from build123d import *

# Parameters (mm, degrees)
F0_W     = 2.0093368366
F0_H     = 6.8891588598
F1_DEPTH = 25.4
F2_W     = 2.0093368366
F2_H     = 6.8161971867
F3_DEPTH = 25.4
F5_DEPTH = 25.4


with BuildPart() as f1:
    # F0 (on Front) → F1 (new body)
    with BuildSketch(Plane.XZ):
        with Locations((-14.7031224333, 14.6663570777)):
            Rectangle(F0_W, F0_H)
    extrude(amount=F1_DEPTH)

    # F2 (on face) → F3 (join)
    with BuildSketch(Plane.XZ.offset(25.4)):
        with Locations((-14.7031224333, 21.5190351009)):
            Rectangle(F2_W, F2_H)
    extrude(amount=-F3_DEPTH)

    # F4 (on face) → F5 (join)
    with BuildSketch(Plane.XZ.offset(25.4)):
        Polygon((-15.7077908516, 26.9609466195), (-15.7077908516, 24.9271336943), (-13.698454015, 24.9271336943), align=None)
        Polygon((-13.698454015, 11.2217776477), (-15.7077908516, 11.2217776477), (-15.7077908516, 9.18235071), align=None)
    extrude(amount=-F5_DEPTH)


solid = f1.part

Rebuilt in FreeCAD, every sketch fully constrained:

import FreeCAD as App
import Part
import Sketcher

V = App.Vector
Q = App.Units.Quantity


def add_polygon(sketch, points):
    """Adds a closed chain of lines whose ends are joined by coincident constraints."""
    first, n = sketch.GeometryCount, len(points)
    for a, b in zip(points, points[1:] + points[:1]):
        sketch.addGeometry(Part.LineSegment(App.Vector(*a, 0), App.Vector(*b, 0)), False)
    for i in range(n):
        sketch.addConstraint(Sketcher.Constraint("Coincident", first + i, 2, first + (i + 1) % n, 1))

doc = App.newDocument("Part")
body = doc.addObject("PartDesign::Body", "Body")

# Sketch on XZ plane
sketch1 = body.newObject("Sketcher::SketchObject", "Sketch")
sketch1.AttachmentSupport = (doc.getObject("XZ_Plane"), [""])
sketch1.MapMode = "FlatFace"
add_polygon(sketch1, [(-15.707791, 18.110937), (-15.707791, 11.221778), (-13.698454, 11.221778), (-13.698454, 18.110937)])  # lines 0-3
sketch1.addConstraint([
    Sketcher.Constraint("Vertical", 0),
    Sketcher.Constraint("Horizontal", 1),
    Sketcher.Constraint("Vertical", 2),
    Sketcher.Constraint("Horizontal", 3),
    Sketcher.Constraint("DistanceY", 0, 2, 0, 1, Q("6.889159 mm")),
    Sketcher.Constraint("DistanceX", 1, 1, 1, 2, Q("2.009337 mm")),
    Sketcher.Constraint("DistanceX", 0, 2, -1, 1, Q("15.707791 mm")),
    Sketcher.Constraint("DistanceY", -1, 1, 0, 2, Q("11.221778 mm")),
])
pad1 = body.newObject("PartDesign::Pad", "Pad")
pad1.Profile = sketch1
pad1.Length = Q("1 in")

# Sketch on XZ plane
sketch2 = body.newObject("Sketcher::SketchObject", "Sketch001")
sketch2.AttachmentSupport = (doc.getObject("XZ_Plane"), [""])
sketch2.MapMode = "FlatFace"
sketch2.AttachmentOffset = App.Placement(V(0, 0, 1 * 25.4), App.Rotation())
add_polygon(sketch2, [(-15.707791, 24.927134), (-15.707791, 18.110937), (-13.698454, 18.110937), (-13.698454, 24.927134)])  # lines 0-3
sketch2.addConstraint([
    Sketcher.Constraint("Vertical", 0),
    Sketcher.Constraint("Horizontal", 1),
    Sketcher.Constraint("Vertical", 2),
    Sketcher.Constraint("Horizontal", 3),
    Sketcher.Constraint("DistanceX", 1, 1, 1, 2, Q("2.009337 mm")),
    Sketcher.Constraint("DistanceY", 0, 2, 0, 1, Q("6.816197 mm")),
    Sketcher.Constraint("DistanceX", 0, 2, -1, 1, Q("15.707791 mm")),
    Sketcher.Constraint("DistanceY", -1, 1, 0, 2, Q("18.110937 mm")),
])
pad2 = body.newObject("PartDesign::Pad", "Pad001")
pad2.Profile = sketch2
pad2.Length = Q("1 in")
pad2.Reversed = True

# Sketch on XZ plane
sketch3 = body.newObject("Sketcher::SketchObject", "Sketch002")
sketch3.AttachmentSupport = (doc.getObject("XZ_Plane"), [""])
sketch3.MapMode = "FlatFace"
sketch3.AttachmentOffset = App.Placement(V(0, 0, 1 * 25.4), App.Rotation())
add_polygon(sketch3, [(-15.707791, 26.960947), (-15.707791, 24.927134), (-13.698454, 24.927134)])  # lines 0-2
add_polygon(sketch3, [(-13.698454, 11.221778), (-15.707791, 11.221778), (-15.707791, 9.182351)])  # lines 3-5
sketch3.addConstraint([
    Sketcher.Constraint("Vertical", 0),
    Sketcher.Constraint("Horizontal", 1),
    Sketcher.Constraint("Horizontal", 3),
    Sketcher.Constraint("Vertical", 4),
    Sketcher.Constraint("Vertical", 2, 2, 3, 2),
    Sketcher.Constraint("Vertical", 1, 2, 5, 2),
    Sketcher.Constraint("Distance", 2, Q("2.858991 mm")),
    Sketcher.Constraint("DistanceX", 1, 1, 1, 2, Q("2.009337 mm")),
    Sketcher.Constraint("DistanceY", 4, 2, 4, 1, Q("2.039427 mm")),
    Sketcher.Constraint("DistanceX", 0, 2, -1, 1, Q("15.707791 mm")),
    Sketcher.Constraint("DistanceY", -1, 1, 4, 2, Q("9.182351 mm")),
    Sketcher.Constraint("DistanceY", 3, 2, 2, 2, Q("15.739169 mm")),
])
pad3 = body.newObject("PartDesign::Pad", "Pad002")
pad3.Profile = sketch3
pad3.Length = Q("1 in")
pad3.Reversed = True

doc.recompute()
